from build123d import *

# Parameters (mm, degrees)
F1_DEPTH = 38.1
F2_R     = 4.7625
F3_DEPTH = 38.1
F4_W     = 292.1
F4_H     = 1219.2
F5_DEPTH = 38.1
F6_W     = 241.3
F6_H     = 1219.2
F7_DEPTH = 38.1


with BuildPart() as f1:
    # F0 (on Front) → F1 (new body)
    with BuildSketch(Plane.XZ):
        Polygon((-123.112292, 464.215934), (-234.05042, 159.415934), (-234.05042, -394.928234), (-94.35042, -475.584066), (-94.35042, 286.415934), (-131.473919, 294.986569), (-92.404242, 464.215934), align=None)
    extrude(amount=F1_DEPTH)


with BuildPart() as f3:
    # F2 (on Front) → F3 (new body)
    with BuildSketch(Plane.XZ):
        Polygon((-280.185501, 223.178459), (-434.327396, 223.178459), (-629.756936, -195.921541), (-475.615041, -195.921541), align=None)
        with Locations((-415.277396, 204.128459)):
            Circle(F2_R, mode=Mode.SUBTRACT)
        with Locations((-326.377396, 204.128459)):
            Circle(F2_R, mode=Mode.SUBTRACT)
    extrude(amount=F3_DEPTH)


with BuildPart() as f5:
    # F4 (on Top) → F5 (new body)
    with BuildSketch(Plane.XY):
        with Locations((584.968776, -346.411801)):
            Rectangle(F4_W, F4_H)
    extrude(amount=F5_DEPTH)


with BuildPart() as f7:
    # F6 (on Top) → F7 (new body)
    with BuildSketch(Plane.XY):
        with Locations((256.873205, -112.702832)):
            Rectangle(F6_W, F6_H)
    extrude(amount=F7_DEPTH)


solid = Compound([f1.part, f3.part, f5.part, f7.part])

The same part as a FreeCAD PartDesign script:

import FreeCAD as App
import Part
import Sketcher

V = App.Vector
Q = App.Units.Quantity

doc = App.newDocument("Part")
body = doc.addObject("PartDesign::Body", "Body")

sketch1 = doc.addObject("Sketcher::SketchObject", "Sketch")
body.addObject(sketch1)
sketch1.AttachmentSupport = (doc.XZ_Plane, [""])
sketch1.MapMode = "FlatFace"
sketch1.addGeometry(Part.LineSegment(V(-123, 464, 0), V(-234, 159, 0)), False)
sketch1.addGeometry(Part.LineSegment(V(-234, 159, 0), V(-234, -395, 0)), False)
sketch1.addGeometry(Part.LineSegment(V(-234, -395, 0), V(-94, -476, 0)), False)
sketch1.addGeometry(Part.LineSegment(V(-94, -476, 0), V(-94, 286, 0)), False)
sketch1.addGeometry(Part.LineSegment(V(-94, 286, 0), V(-131, 295, 0)), False)
sketch1.addGeometry(Part.LineSegment(V(-131, 295, 0), V(-92, 464, 0)), False)
sketch1.addGeometry(Part.LineSegment(V(-92, 464, 0), V(-123, 464, 0)), False)
sketch1.addConstraint(Sketcher.Constraint("Coincident", 0, 2, 1, 1))
sketch1.addConstraint(Sketcher.Constraint("Coincident", 1, 2, 2, 1))
sketch1.addConstraint(Sketcher.Constraint("Coincident", 2, 2, 3, 1))
sketch1.addConstraint(Sketcher.Constraint("Coincident", 3, 2, 4, 1))
sketch1.addConstraint(Sketcher.Constraint("Coincident", 4, 2, 5, 1))
sketch1.addConstraint(Sketcher.Constraint("Coincident", 5, 2, 6, 1))
sketch1.addConstraint(Sketcher.Constraint("Coincident", 6, 2, 0, 1))
sketch1.addConstraint(Sketcher.Constraint("Vertical", 1))
sketch1.addConstraint(Sketcher.Constraint("Vertical", 3))
sketch1.addConstraint(Sketcher.Constraint("Horizontal", 6))
sketch1.addConstraint(Sketcher.Constraint("Perpendicular", 4, 5))
sketch1.addConstraint(Sketcher.Constraint("DistanceY", 3, 1, 3, 2, Q("30 in")))
sketch1.addConstraint(Sketcher.Constraint("Angle", 0, Q("-110 deg")))
sketch1.addConstraint(Sketcher.Constraint("Angle", 2, Q("-30 deg")))
sketch1.addConstraint(Sketcher.Constraint("Angle", 4, Q("167 deg")))
sketch1.addConstraint(Sketcher.Constraint("DistanceY", 2, 2, 0, 2, Q("25 in")))
sketch1.addConstraint(Sketcher.Constraint("DistanceY", 3, 2, 5, 2, Q("7 in")))
sketch1.addConstraint(Sketcher.Constraint("Distance", 4, Q("1.5 in")))
sketch1.addConstraint(Sketcher.Constraint("DistanceX", 1, 2, 2, 2, Q("5.5 in")))
sketch1.addConstraint(Sketcher.Constraint("DistanceX", 0, 2, -1, 1, Q("234.05042 mm")))
sketch1.addConstraint(Sketcher.Constraint("DistanceY", -1, 1, 4, 2, Q("294.986569 mm")))
pad1 = doc.addObject("PartDesign::Pad", "Pad")
body.addObject(pad1)
pad1.Profile = sketch1
pad1.Length = Q("1.5 in")
body2 = doc.addObject("PartDesign::Body", "Body001")

sketch2 = doc.addObject("Sketcher::SketchObject", "Sketch001")
body2.addObject(sketch2)
sketch2.AttachmentSupport = (doc.getObject("XZ_Plane001"), [""])
sketch2.MapMode = "FlatFace"
sketch2.addGeometry(Part.LineSegment(V(-280.2, 223.2, 0), V(-434.3, 223.2, 0)), False)
sketch2.addGeometry(Part.LineSegment(V(-434.3, 223.2, 0), V(-629.8, -195.9, 0)), False)
sketch2.addGeometry(Part.LineSegment(V(-629.8, -195.9, 0), V(-475.6, -195.9, 0)), False)
sketch2.addGeometry(Part.LineSegment(V(-475.6, -195.9, 0), V(-280.2, 223.2, 0)), False)
sketch2.addGeometry(Part.Circle(V(-415.3, 204.1, 0), V(0, 0, 1), 4.8), False)
sketch2.addGeometry(Part.Circle(V(-326.4, 204.1, 0), V(0, 0, 1), 4.8), False)
sketch2.addConstraint(Sketcher.Constraint("Coincident", 0, 2, 1, 1))
sketch2.addConstraint(Sketcher.Constraint("Coincident", 1, 2, 2, 1))
sketch2.addConstraint(Sketcher.Constraint("Coincident", 2, 2, 3, 1))
sketch2.addConstraint(Sketcher.Constraint("Coincident", 3, 2, 0, 1))
sketch2.addConstraint(Sketcher.Constraint("Horizontal", 0))
sketch2.addConstraint(Sketcher.Constraint("Horizontal", 2))
sketch2.addConstraint(Sketcher.Constraint("Equal", 4, 5))
sketch2.addConstraint(Sketcher.Constraint("Parallel", 1, 3))
sketch2.addConstraint(Sketcher.Constraint("Horizontal", 4, 3, 5, 3))
sketch2.addConstraint(Sketcher.Constraint("Diameter", 4, Q("0.375 in")))
sketch2.addConstraint(Sketcher.Constraint("Angle", 1, Q("-115 deg")))
sketch2.addConstraint(Sketcher.Constraint("DistanceX", 4, 3, 5, 3, Q("3.5 in")))
sketch2.addConstraint(Sketcher.Constraint("DistanceY", 1, 2, 0, 2, Q("16.5 in")))
sketch2.addConstraint(Sketcher.Constraint("DistanceX", 0, 2, 4, 3, Q("0.75 in")))
sketch2.addConstraint(Sketcher.Constraint("DistanceY", 4, 3, 0, 2, Q("0.75 in")))
sketch2.addConstraint(Sketcher.Constraint("DistanceX", 3, 2, -1, 1, Q("280.185501 mm")))
sketch2.addConstraint(Sketcher.Constraint("DistanceX", 0, 2, 0, 1, Q("154.141895 mm")))
sketch2.addConstraint(Sketcher.Constraint("DistanceY", -1, 1, 4, 3, Q("204.128459 mm")))
pad2 = doc.addObject("PartDesign::Pad", "Pad001")
body2.addObject(pad2)
pad2.Profile = sketch2
pad2.Length = Q("1.5 in")
body3 = doc.addObject("PartDesign::Body", "Body002")

sketch3 = doc.addObject("Sketcher::SketchObject", "Sketch002")
body3.addObject(sketch3)
sketch3.AttachmentSupport = (doc.getObject("XY_Plane002"), [""])
sketch3.MapMode = "FlatFace"
sketch3.addGeometry(Part.LineSegment(V(439, 263, 0), V(439, -956, 0)), False)
sketch3.addGeometry(Part.LineSegment(V(439, -956, 0), V(731, -956, 0)), False)
sketch3.addGeometry(Part.LineSegment(V(731, -956, 0), V(731, 263, 0)), False)
sketch3.addGeometry(Part.LineSegment(V(731, 263, 0), V(439, 263, 0)), False)
sketch3.addConstraint(Sketcher.Constraint("Coincident", 0, 2, 1, 1))
sketch3.addConstraint(Sketcher.Constraint("Coincident", 1, 2, 2, 1))
sketch3.addConstraint(Sketcher.Constraint("Coincident", 2, 2, 3, 1))
sketch3.addConstraint(Sketcher.Constraint("Coincident", 3, 2, 0, 1))
sketch3.addConstraint(Sketcher.Constraint("Vertical", 0))
sketch3.addConstraint(Sketcher.Constraint("Horizontal", 1))
sketch3.addConstraint(Sketcher.Constraint("Vertical", 2))
sketch3.addConstraint(Sketcher.Constraint("Horizontal", 3))
sketch3.addConstraint(Sketcher.Constraint("DistanceY", 0, 2, 0, 1, Q("48 in")))
sketch3.addConstraint(Sketcher.Constraint("DistanceX", 1, 1, 1, 2, Q("11.5 in")))
sketch3.addConstraint(Sketcher.Constraint("DistanceY", 0, 2, -1, 1, Q("956.011801 mm")))
sketch3.addConstraint(Sketcher.Constraint("DistanceX", -1, 1, 0, 2, Q("438.918776 mm")))
pad3 = doc.addObject("PartDesign::Pad", "Pad002")
body3.addObject(pad3)
pad3.Profile = sketch3
pad3.Length = Q("1.5 in")
body4 = doc.addObject("PartDesign::Body", "Body003")

sketch4 = doc.addObject("Sketcher::SketchObject", "Sketch003")
body4.addObject(sketch4)
sketch4.AttachmentSupport = (doc.getObject("XY_Plane003"), [""])
sketch4.MapMode = "FlatFace"
sketch4.addGeometry(Part.LineSegment(V(136, 497, 0), V(136, -722, 0)), False)
sketch4.addGeometry(Part.LineSegment(V(136, -722, 0), V(378, -722, 0)), False)
sketch4.addGeometry(Part.LineSegment(V(378, -722, 0), V(378, 497, 0)), False)
sketch4.addGeometry(Part.LineSegment(V(378, 497, 0), V(136, 497, 0)), False)
sketch4.addConstraint(Sketcher.Constraint("Coincident", 0, 2, 1, 1))
sketch4.addConstraint(Sketcher.Constraint("Coincident", 1, 2, 2, 1))
sketch4.addConstraint(Sketcher.Constraint("Coincident", 2, 2, 3, 1))
sketch4.addConstraint(Sketcher.Constraint("Coincident", 3, 2, 0, 1))
sketch4.addConstraint(Sketcher.Constraint("Vertical", 0))
sketch4.addConstraint(Sketcher.Constraint("Horizontal", 1))
sketch4.addConstraint(Sketcher.Constraint("Vertical", 2))
sketch4.addConstraint(Sketcher.Constraint("Horizontal", 3))
sketch4.addConstraint(Sketcher.Constraint("DistanceY", 0, 2, 0, 1, Q("48 in")))
sketch4.addConstraint(Sketcher.Constraint("DistanceX", 1, 1, 1, 2, Q("9.5 in")))
sketch4.addConstraint(Sketcher.Constraint("DistanceY", 0, 2, -1, 1, Q("722.302832 mm")))
sketch4.addConstraint(Sketcher.Constraint("DistanceX", -1, 1, 0, 2, Q("136.223205 mm")))
pad4 = doc.addObject("PartDesign::Pad", "Pad003")
body4.addObject(pad4)
pad4.Profile = sketch4
pad4.Length = Q("1.5 in")

doc.recompute()
